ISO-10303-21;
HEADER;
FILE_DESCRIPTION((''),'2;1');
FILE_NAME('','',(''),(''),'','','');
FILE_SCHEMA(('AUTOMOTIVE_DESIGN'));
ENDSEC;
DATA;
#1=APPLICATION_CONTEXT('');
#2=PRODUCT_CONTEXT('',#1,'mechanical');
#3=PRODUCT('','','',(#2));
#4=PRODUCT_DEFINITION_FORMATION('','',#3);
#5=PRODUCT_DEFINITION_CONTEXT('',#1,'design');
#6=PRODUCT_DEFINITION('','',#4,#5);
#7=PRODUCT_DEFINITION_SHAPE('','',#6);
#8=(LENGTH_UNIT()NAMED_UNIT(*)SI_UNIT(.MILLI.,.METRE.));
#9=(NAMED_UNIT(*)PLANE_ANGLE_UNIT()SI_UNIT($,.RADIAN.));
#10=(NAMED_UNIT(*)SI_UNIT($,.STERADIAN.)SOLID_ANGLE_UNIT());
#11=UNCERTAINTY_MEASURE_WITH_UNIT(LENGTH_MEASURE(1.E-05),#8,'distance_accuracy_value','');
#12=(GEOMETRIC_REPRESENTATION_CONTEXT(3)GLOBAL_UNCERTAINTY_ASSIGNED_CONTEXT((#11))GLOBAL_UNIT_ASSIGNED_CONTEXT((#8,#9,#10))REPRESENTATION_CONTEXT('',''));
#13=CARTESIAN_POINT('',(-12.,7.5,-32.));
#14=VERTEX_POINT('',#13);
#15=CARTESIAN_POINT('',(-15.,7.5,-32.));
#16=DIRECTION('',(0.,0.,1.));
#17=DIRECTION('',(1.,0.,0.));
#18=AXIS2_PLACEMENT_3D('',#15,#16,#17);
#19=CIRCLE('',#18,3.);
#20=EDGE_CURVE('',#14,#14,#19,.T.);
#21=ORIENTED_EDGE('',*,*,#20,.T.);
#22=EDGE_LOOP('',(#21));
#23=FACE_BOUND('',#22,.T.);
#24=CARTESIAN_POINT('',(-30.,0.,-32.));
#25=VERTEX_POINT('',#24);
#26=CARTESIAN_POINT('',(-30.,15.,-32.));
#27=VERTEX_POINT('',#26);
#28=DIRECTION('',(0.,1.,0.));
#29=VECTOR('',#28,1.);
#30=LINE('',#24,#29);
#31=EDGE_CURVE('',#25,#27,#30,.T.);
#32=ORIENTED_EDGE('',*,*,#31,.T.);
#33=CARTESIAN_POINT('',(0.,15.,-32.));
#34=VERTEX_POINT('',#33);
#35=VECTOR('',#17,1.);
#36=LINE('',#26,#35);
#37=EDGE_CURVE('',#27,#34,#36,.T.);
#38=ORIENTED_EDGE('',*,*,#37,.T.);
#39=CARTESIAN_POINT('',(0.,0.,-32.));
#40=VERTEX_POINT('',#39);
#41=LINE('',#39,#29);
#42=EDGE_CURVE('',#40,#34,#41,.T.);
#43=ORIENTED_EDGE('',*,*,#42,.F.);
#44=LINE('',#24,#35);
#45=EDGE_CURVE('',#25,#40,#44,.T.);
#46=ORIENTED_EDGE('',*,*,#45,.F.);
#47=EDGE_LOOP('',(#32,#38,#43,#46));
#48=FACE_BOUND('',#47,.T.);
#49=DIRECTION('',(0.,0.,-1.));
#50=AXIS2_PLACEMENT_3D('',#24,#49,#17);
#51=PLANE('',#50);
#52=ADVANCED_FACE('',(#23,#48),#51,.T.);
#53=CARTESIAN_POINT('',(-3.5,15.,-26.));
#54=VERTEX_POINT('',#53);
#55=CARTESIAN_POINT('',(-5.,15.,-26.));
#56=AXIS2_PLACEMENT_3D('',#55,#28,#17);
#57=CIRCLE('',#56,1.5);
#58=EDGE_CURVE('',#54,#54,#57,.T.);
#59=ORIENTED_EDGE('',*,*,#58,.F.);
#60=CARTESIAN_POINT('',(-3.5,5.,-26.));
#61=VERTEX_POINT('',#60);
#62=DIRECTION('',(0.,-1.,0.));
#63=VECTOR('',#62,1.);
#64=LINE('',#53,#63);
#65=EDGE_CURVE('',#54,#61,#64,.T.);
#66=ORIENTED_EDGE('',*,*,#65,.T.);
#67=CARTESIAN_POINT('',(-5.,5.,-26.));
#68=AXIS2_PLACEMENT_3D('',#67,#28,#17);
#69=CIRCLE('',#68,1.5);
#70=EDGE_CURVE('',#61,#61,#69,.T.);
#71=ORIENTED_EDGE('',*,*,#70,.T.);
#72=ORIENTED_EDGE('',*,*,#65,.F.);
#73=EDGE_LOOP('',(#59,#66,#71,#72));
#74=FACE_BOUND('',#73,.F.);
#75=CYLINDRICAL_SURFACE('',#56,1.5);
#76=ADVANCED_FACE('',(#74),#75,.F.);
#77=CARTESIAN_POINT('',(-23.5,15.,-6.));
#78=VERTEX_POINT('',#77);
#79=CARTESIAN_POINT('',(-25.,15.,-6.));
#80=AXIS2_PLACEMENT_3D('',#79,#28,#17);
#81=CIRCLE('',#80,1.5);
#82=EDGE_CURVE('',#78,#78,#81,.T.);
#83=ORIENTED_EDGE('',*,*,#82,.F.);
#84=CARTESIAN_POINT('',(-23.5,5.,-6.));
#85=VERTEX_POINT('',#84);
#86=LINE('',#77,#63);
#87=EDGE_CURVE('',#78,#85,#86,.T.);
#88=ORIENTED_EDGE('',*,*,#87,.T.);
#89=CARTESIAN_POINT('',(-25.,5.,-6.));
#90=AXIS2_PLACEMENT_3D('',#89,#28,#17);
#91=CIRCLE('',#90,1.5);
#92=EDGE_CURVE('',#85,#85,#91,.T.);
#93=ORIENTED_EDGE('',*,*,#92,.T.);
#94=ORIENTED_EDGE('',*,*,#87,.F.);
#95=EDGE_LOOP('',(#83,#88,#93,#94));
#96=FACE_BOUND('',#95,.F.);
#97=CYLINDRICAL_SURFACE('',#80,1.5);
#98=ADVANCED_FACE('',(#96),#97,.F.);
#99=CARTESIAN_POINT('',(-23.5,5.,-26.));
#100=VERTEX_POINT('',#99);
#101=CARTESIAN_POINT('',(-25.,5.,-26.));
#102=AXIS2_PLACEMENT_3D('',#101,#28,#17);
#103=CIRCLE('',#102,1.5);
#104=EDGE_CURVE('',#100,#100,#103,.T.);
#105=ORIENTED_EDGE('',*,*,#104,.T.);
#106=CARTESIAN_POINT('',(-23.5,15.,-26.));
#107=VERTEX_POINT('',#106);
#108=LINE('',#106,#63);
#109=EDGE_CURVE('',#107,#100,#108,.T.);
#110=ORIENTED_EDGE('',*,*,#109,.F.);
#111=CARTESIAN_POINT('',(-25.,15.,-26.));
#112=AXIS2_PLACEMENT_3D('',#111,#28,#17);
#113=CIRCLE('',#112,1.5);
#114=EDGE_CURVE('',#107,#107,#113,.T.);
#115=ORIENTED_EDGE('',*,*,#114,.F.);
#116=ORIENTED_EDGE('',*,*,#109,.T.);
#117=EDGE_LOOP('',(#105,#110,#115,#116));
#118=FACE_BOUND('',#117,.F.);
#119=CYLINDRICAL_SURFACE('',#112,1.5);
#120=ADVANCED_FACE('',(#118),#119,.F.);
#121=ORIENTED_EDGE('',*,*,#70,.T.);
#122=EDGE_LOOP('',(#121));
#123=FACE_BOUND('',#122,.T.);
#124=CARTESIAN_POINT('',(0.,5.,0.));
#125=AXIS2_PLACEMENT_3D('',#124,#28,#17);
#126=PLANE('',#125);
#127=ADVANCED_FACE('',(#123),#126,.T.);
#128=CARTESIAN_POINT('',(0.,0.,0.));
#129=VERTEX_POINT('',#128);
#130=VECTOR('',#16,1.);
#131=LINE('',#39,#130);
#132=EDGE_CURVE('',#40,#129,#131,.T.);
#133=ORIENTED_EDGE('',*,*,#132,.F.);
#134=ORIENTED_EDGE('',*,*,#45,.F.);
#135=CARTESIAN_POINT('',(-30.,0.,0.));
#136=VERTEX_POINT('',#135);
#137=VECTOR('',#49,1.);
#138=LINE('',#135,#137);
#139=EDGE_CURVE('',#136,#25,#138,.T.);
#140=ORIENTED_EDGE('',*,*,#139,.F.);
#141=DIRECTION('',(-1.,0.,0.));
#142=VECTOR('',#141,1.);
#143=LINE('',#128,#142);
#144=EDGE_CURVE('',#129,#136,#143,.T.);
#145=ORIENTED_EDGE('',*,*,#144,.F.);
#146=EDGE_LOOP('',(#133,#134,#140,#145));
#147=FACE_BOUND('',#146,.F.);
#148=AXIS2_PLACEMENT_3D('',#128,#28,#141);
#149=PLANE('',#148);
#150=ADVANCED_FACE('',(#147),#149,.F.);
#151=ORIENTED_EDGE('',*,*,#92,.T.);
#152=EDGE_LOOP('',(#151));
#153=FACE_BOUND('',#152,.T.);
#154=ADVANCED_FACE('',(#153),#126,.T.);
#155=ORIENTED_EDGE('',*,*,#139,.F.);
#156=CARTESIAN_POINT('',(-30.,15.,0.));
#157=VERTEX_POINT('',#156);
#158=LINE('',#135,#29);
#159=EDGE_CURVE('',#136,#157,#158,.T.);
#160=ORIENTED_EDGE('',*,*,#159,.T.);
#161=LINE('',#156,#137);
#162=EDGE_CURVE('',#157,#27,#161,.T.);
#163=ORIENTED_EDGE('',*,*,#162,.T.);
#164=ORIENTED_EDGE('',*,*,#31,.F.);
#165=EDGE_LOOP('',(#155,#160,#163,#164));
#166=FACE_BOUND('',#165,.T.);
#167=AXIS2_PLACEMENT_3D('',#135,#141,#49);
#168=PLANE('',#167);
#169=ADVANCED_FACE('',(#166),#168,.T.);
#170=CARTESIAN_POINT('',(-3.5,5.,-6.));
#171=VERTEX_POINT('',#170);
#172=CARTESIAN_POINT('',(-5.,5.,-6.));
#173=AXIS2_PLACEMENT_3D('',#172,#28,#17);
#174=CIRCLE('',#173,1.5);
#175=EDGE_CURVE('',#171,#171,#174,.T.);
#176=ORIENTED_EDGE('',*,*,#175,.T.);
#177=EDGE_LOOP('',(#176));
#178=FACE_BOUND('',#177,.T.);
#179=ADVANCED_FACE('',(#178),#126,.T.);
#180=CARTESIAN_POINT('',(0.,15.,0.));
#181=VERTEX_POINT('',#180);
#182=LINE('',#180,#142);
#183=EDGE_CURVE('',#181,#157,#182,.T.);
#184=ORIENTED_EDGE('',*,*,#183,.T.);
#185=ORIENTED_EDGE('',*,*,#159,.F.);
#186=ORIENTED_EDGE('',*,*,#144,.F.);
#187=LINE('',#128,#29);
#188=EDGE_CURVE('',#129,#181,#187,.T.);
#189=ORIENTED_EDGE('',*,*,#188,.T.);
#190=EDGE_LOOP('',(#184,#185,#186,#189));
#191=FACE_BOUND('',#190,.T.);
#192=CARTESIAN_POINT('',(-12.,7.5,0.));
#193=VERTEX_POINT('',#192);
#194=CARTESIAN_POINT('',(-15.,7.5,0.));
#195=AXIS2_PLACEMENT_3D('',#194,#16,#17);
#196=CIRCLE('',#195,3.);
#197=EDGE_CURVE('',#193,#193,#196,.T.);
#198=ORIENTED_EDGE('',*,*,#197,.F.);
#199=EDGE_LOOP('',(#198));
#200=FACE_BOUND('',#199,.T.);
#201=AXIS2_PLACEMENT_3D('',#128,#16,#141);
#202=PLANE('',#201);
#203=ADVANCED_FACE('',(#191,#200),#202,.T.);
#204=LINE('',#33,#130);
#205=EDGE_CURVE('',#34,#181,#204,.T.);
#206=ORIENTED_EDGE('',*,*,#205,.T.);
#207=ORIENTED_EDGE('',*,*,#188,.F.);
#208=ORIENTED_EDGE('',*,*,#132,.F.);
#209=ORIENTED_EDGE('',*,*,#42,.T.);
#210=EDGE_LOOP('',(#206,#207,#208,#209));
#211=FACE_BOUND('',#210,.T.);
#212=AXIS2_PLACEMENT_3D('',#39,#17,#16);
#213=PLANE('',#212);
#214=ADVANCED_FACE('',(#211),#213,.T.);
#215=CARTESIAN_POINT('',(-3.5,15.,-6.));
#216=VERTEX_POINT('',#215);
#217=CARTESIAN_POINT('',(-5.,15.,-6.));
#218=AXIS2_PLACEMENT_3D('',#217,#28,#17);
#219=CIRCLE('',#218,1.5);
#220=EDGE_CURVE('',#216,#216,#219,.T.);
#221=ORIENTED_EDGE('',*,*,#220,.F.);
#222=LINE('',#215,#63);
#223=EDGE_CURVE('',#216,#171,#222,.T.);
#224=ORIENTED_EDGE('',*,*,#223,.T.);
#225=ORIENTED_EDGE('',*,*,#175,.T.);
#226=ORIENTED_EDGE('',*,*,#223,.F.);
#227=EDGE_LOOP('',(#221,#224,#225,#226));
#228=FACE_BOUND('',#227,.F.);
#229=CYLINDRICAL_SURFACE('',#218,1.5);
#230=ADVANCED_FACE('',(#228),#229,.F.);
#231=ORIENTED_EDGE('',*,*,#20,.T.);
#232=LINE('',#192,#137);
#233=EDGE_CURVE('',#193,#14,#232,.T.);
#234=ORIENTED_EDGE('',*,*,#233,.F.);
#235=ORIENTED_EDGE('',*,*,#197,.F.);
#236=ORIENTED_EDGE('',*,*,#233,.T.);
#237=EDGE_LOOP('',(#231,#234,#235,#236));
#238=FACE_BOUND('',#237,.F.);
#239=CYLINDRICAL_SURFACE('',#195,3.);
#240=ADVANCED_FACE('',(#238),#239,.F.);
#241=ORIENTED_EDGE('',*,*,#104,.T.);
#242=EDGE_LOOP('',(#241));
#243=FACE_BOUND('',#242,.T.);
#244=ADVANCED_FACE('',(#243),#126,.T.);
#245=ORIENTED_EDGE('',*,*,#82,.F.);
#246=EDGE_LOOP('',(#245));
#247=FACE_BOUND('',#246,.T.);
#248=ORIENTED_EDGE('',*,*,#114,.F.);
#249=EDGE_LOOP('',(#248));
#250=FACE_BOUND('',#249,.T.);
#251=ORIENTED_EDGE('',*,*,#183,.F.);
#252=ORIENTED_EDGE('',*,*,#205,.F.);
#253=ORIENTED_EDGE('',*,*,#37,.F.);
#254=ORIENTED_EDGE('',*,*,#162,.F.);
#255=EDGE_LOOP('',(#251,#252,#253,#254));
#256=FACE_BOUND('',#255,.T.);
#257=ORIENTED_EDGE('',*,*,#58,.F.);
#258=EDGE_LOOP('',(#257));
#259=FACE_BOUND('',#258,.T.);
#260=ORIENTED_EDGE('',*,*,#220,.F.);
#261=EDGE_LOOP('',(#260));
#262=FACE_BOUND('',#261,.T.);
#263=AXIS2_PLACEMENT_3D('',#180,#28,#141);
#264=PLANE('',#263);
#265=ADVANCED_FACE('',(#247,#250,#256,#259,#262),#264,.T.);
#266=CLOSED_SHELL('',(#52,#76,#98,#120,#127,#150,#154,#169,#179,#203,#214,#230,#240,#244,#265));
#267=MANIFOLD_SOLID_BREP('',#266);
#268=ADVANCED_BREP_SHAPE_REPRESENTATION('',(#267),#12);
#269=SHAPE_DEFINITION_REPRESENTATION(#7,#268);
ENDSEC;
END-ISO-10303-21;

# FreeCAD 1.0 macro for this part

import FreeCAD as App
import Part
import Sketcher
from FreeCAD import Vector


def add_polygon(sketch, points):
    """Adds a closed chain of lines whose ends are joined by coincident constraints."""
    first, n = sketch.GeometryCount, len(points)
    for a, b in zip(points, points[1:] + points[:1]):
        sketch.addGeometry(Part.LineSegment(App.Vector(*a, 0), App.Vector(*b, 0)), False)
    for i in range(n):
        sketch.addConstraint(Sketcher.Constraint("Coincident", first + i, 2, first + (i + 1) % n, 1))

doc = App.newDocument("Part")
body = doc.addObject("PartDesign::Body", "Body")

sketch1 = body.newObject("Sketcher::SketchObject", "Sketch")
sketch1.AttachmentSupport = (doc.getObject("XZ_Plane"), [""])
sketch1.MapMode = "FlatFace"
add_polygon(sketch1, [(-30, 0), (0, 0), (0, -32), (-30, -32)])
sketch1.addConstraint(Sketcher.Constraint("Horizontal", 0))
sketch1.addConstraint(Sketcher.Constraint("Vertical", 1))
sketch1.addConstraint(Sketcher.Constraint("Horizontal", 2))
sketch1.addConstraint(Sketcher.Constraint("Vertical", 3))
sketch1.addConstraint(Sketcher.Constraint("Coincident", 0, 2, -1, 1))
sketch1.addConstraint(Sketcher.Constraint("DistanceX", 0, 1, 0, 2, 30.0))
sketch1.addConstraint(Sketcher.Constraint("DistanceY", 1, 2, 1, 1, 32.0))
pad1 = body.newObject("PartDesign::Pad", "Pad")
pad1.Profile = sketch1
pad1.Length = 15
pad1.Reversed = True

sketch2 = body.newObject("Sketcher::SketchObject", "Sketch001")
sketch2.AttachmentSupport = (doc.getObject("XY_Plane"), [""])
sketch2.MapMode = "FlatFace"
sketch2.addGeometry(Part.Circle(Vector(-15, 7.5, 0), Vector(0, 0, 1), 3), False)
sketch2.addConstraint(Sketcher.Constraint("Diameter", 0, 6.0))
sketch2.addConstraint(Sketcher.Constraint("DistanceX", 0, 3, -1, 1, 15.0))
sketch2.addConstraint(Sketcher.Constraint("DistanceY", -1, 1, 0, 3, 7.5))
pocket1 = body.newObject("PartDesign::Pocket", "Pocket")
pocket1.Profile = sketch2
pocket1.Type = "ThroughAll"

sketch3 = body.newObject("Sketcher::SketchObject", "Sketch002")
sketch3.AttachmentSupport = (doc.getObject("XZ_Plane"), [""])
sketch3.MapMode = "FlatFace"
sketch3.AttachmentOffset = App.Placement(Vector(0, 0, -15), App.Rotation())
sketch3.addGeometry(Part.Circle(Vector(-25, -6, 0), Vector(0, 0, 1), 1.5), False)
sketch3.addGeometry(Part.Circle(Vector(-25, -26, 0), Vector(0, 0, 1), 1.5), False)
sketch3.addGeometry(Part.Circle(Vector(-5, -6, 0), Vector(0, 0, 1), 1.5), False)
sketch3.addGeometry(Part.Circle(Vector(-5, -26, 0), Vector(0, 0, 1), 1.5), False)
sketch3.addConstraint(Sketcher.Constraint("Equal", 0, 1))
sketch3.addConstraint(Sketcher.Constraint("Equal", 1, 2))
sketch3.addConstraint(Sketcher.Constraint("Equal", 2, 3))
sketch3.addConstraint(Sketcher.Constraint("Horizontal", 0, 3, 2, 3))
sketch3.addConstraint(Sketcher.Constraint("Horizontal", 1, 3, 3, 3))
sketch3.addConstraint(Sketcher.Constraint("Vertical", 0, 3, 1, 3))
sketch3.addConstraint(Sketcher.Constraint("Vertical", 2, 3, 3, 3))
sketch3.addConstraint(Sketcher.Constraint("Diameter", 0, 3.0))
sketch3.addConstraint(Sketcher.Constraint("DistanceY", 0, 3, -1, 1, 6.0))
sketch3.addConstraint(Sketcher.Constraint("DistanceY", 1, 3, 0, 3, 20.0))
sketch3.addConstraint(Sketcher.Constraint("DistanceX", 0, 3, 2, 3, 20.0))
sketch3.addConstraint(Sketcher.Constraint("DistanceX", 0, 3, -1, 1, 25.0))
pocket2 = body.newObject("PartDesign::Pocket", "Pocket001")
pocket2.Profile = sketch3
pocket2.Length = 10
pocket2.Reversed = True

doc.recompute()
